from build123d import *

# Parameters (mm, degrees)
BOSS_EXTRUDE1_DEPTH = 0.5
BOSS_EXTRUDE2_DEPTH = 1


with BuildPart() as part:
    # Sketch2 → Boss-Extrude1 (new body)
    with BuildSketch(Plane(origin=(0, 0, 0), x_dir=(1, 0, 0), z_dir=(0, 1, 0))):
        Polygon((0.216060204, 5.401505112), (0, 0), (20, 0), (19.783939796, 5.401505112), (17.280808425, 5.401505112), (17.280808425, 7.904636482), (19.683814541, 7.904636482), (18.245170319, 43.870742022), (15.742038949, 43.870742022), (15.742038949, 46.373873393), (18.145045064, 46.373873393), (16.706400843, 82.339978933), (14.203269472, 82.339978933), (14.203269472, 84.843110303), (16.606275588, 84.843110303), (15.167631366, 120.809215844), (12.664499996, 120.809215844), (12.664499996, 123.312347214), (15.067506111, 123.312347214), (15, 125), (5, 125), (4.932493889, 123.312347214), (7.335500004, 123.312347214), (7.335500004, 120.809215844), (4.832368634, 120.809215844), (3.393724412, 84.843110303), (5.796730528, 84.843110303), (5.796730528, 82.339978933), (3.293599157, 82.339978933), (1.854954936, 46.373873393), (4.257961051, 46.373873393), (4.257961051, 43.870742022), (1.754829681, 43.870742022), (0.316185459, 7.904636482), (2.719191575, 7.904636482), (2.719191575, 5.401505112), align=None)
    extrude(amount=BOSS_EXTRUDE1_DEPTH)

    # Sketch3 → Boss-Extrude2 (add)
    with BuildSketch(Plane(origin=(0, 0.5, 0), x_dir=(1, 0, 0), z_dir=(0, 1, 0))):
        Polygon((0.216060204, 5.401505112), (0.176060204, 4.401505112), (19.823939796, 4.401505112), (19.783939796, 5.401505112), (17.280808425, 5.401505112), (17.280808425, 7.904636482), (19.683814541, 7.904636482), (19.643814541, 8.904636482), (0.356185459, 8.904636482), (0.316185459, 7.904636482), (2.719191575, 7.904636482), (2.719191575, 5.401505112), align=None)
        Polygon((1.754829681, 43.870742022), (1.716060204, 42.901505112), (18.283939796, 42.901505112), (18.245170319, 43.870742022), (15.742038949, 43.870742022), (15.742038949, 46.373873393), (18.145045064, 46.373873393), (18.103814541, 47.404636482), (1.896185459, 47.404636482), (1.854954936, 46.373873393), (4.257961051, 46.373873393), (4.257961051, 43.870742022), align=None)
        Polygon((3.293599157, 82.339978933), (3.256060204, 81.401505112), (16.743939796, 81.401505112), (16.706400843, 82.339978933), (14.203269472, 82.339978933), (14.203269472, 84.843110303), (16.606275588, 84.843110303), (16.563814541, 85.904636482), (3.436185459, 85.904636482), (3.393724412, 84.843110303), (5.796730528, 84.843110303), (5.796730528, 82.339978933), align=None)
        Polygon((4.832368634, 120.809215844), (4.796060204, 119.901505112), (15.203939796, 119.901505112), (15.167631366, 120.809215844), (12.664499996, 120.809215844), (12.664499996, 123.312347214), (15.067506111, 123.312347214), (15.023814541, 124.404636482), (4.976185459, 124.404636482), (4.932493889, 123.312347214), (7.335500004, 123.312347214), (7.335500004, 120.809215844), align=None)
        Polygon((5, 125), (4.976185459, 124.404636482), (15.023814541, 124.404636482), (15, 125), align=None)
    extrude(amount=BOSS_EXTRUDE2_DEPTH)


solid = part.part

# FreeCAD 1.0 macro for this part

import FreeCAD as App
import Part
import Sketcher

V = App.Vector
Q = App.Units.Quantity

doc = App.newDocument("Part")
params = doc.addObject("Spreadsheet::Sheet", "Params")
for row, (alias, value) in enumerate([
    ("sketch1_width", "20 mm"),
    ("sketch1_width2", "10 mm"),
    ("pad1_length", "0.5 mm"),
    ("sketch2_width", "10 mm"),
    ("pad2_length", "1 mm"),
], start=1):
    params.set(f"A{row}", alias)
    params.set(f"B{row}", "=" + value)
    params.setAlias(f"B{row}", alias)

body = doc.addObject("PartDesign::Body", "Body")

# Sketch on XZ plane
sketch1 = body.newObject("Sketcher::SketchObject", "Sketch")
sketch1.AttachmentSupport = (doc.getObject("XZ_Plane"), [""])
sketch1.MapMode = "FlatFace"
sketch1.addGeometry([
    Part.LineSegment(V(0.21606, -5.401505, 0), V(0, 0, 0)),  # 0
    Part.LineSegment(V(0, 0, 0), V(20, 0, 0)),  # 1
    Part.LineSegment(V(20, 0, 0), V(19.78394, -5.401505, 0)),  # 2
    Part.LineSegment(V(19.78394, -5.401505, 0), V(17.280808, -5.401505, 0)),  # 3
    Part.LineSegment(V(17.280808, -5.401505, 0), V(17.280808, -7.904636, 0)),  # 4
    Part.LineSegment(V(17.280808, -7.904636, 0), V(19.683815, -7.904636, 0)),  # 5
    Part.LineSegment(V(19.683815, -7.904636, 0), V(18.24517, -43.870742, 0)),  # 6
    Part.LineSegment(V(18.24517, -43.870742, 0), V(15.742039, -43.870742, 0)),  # 7
    Part.LineSegment(V(15.742039, -43.870742, 0), V(15.742039, -46.373873, 0)),  # 8
    Part.LineSegment(V(15.742039, -46.373873, 0), V(18.145045, -46.373873, 0)),  # 9
    Part.LineSegment(V(18.145045, -46.373873, 0), V(16.706401, -82.339979, 0)),  # 10
    Part.LineSegment(V(16.706401, -82.339979, 0), V(14.203269, -82.339979, 0)),  # 11
    Part.LineSegment(V(14.203269, -82.339979, 0), V(14.203269, -84.84311, 0)),  # 12
    Part.LineSegment(V(14.203269, -84.84311, 0), V(16.606276, -84.84311, 0)),  # 13
    Part.LineSegment(V(16.606276, -84.84311, 0), V(15.167631, -120.809216, 0)),  # 14
    Part.LineSegment(V(15.167631, -120.809216, 0), V(12.6645, -120.809216, 0)),  # 15
    Part.LineSegment(V(12.6645, -120.809216, 0), V(12.6645, -123.312347, 0)),  # 16
    Part.LineSegment(V(12.6645, -123.312347, 0), V(15.067506, -123.312347, 0)),  # 17
    Part.LineSegment(V(15.067506, -123.312347, 0), V(15, -125, 0)),  # 18
    Part.LineSegment(V(15, -125, 0), V(5, -125, 0)),  # 19
    Part.LineSegment(V(5, -125, 0), V(4.932494, -123.312347, 0)),  # 20
    Part.LineSegment(V(4.932494, -123.312347, 0), V(7.3355, -123.312347, 0)),  # 21
    Part.LineSegment(V(7.3355, -123.312347, 0), V(7.3355, -120.809216, 0)),  # 22
    Part.LineSegment(V(7.3355, -120.809216, 0), V(4.832369, -120.809216, 0)),  # 23
    Part.LineSegment(V(4.832369, -120.809216, 0), V(3.393724, -84.84311, 0)),  # 24
    Part.LineSegment(V(3.393724, -84.84311, 0), V(5.796731, -84.84311, 0)),  # 25
    Part.LineSegment(V(5.796731, -84.84311, 0), V(5.796731, -82.339979, 0)),  # 26
    Part.LineSegment(V(5.796731, -82.339979, 0), V(3.293599, -82.339979, 0)),  # 27
    Part.LineSegment(V(3.293599, -82.339979, 0), V(1.854955, -46.373873, 0)),  # 28
    Part.LineSegment(V(1.854955, -46.373873, 0), V(4.257961, -46.373873, 0)),  # 29
    Part.LineSegment(V(4.257961, -46.373873, 0), V(4.257961, -43.870742, 0)),  # 30
    Part.LineSegment(V(4.257961, -43.870742, 0), V(1.75483, -43.870742, 0)),  # 31
    Part.LineSegment(V(1.75483, -43.870742, 0), V(0.316185, -7.904636, 0)),  # 32
    Part.LineSegment(V(0.316185, -7.904636, 0), V(2.719192, -7.904636, 0)),  # 33
    Part.LineSegment(V(2.719192, -7.904636, 0), V(2.719192, -5.401505, 0)),  # 34
    Part.LineSegment(V(2.719192, -5.401505, 0), V(0.21606, -5.401505, 0)),  # 35
], False)
sketch1.addConstraint([
    Sketcher.Constraint("Coincident", 0, 2, 1, 1),
    Sketcher.Constraint("Coincident", 1, 2, 2, 1),
    Sketcher.Constraint("Coincident", 2, 2, 3, 1),
    Sketcher.Constraint("Coincident", 3, 2, 4, 1),
    Sketcher.Constraint("Coincident", 4, 2, 5, 1),
    Sketcher.Constraint("Coincident", 5, 2, 6, 1),
    Sketcher.Constraint("Coincident", 6, 2, 7, 1),
    Sketcher.Constraint("Coincident", 7, 2, 8, 1),
    Sketcher.Constraint("Coincident", 8, 2, 9, 1),
    Sketcher.Constraint("Coincident", 9, 2, 10, 1),
    Sketcher.Constraint("Coincident", 10, 2, 11, 1),
    Sketcher.Constraint("Coincident", 11, 2, 12, 1),
    Sketcher.Constraint("Coincident", 12, 2, 13, 1),
    Sketcher.Constraint("Coincident", 13, 2, 14, 1),
    Sketcher.Constraint("Coincident", 14, 2, 15, 1),
    Sketcher.Constraint("Coincident", 15, 2, 16, 1),
    Sketcher.Constraint("Coincident", 16, 2, 17, 1),
    Sketcher.Constraint("Coincident", 17, 2, 18, 1),
    Sketcher.Constraint("Coincident", 18, 2, 19, 1),
    Sketcher.Constraint("Coincident", 19, 2, 20, 1),
    Sketcher.Constraint("Coincident", 20, 2, 21, 1),
    Sketcher.Constraint("Coincident", 21, 2, 22, 1),
    Sketcher.Constraint("Coincident", 22, 2, 23, 1),
    Sketcher.Constraint("Coincident", 23, 2, 24, 1),
    Sketcher.Constraint("Coincident", 24, 2, 25, 1),
    Sketcher.Constraint("Coincident", 25, 2, 26, 1),
    Sketcher.Constraint("Coincident", 26, 2, 27, 1),
    Sketcher.Constraint("Coincident", 27, 2, 28, 1),
    Sketcher.Constraint("Coincident", 28, 2, 29, 1),
    Sketcher.Constraint("Coincident", 29, 2, 30, 1),
    Sketcher.Constraint("Coincident", 30, 2, 31, 1),
    Sketcher.Constraint("Coincident", 31, 2, 32, 1),
    Sketcher.Constraint("Coincident", 32, 2, 33, 1),
    Sketcher.Constraint("Coincident", 33, 2, 34, 1),
    Sketcher.Constraint("Coincident", 34, 2, 35, 1),
    Sketcher.Constraint("Coincident", 35, 2, 0, 1),
    Sketcher.Constraint("Horizontal", 1),
    Sketcher.Constraint("Horizontal", 3),
    Sketcher.Constraint("Vertical", 4),
    Sketcher.Constraint("Horizontal", 5),
    Sketcher.Constraint("Horizontal", 7),
    Sketcher.Constraint("Vertical", 8),
    Sketcher.Constraint("Horizontal", 9),
    Sketcher.Constraint("Horizontal", 11),
    Sketcher.Constraint("Vertical", 12),
    Sketcher.Constraint("Horizontal", 13),
    Sketcher.Constraint("Horizontal", 15),
    Sketcher.Constraint("Vertical", 16),
    Sketcher.Constraint("Horizontal", 17),
    Sketcher.Constraint("Horizontal", 19),
    Sketcher.Constraint("Horizontal", 21),
    Sketcher.Constraint("Vertical", 22),
    Sketcher.Constraint("Horizontal", 23),
    Sketcher.Constraint("Horizontal", 25),
    Sketcher.Constraint("Vertical", 26),
    Sketcher.Constraint("Horizontal", 27),
    Sketcher.Constraint("Horizontal", 29),
    Sketcher.Constraint("Vertical", 30),
    Sketcher.Constraint("Horizontal", 31),
    Sketcher.Constraint("Horizontal", 33),
    Sketcher.Constraint("Vertical", 34),
    Sketcher.Constraint("Horizontal", 35),
    Sketcher.Constraint("Coincident", 0, 2, -1, 1),
    Sketcher.Constraint("DistanceX", 1, 1, 1, 2, Q("20 mm")),
    Sketcher.Constraint("DistanceX", 19, 2, 19, 1, Q("10 mm")),
    Sketcher.Constraint("DistanceX", -1, 1, 18, 2, Q("15 mm")),
    Sketcher.Constraint("DistanceY", 18, 2, -1, 1, Q("125 mm")),
    Sketcher.Constraint("DistanceX", 21, 2, 16, 2, Q("5.329 mm")),
    Sketcher.Constraint("DistanceX", 3, 2, 3, 1, Q("2.503131 mm")),
    Sketcher.Constraint("DistanceX", 7, 2, 7, 1, Q("2.503131 mm")),
    Sketcher.Constraint("DistanceX", 11, 2, 11, 1, Q("2.503131 mm")),
    Sketcher.Constraint("DistanceX", 15, 2, 15, 1, Q("2.503131 mm")),
    Sketcher.Constraint("DistanceX", 23, 2, 23, 1, Q("2.503131 mm")),
    Sketcher.Constraint("DistanceX", 27, 2, 27, 1, Q("2.503131 mm")),
    Sketcher.Constraint("DistanceX", 31, 2, 31, 1, Q("2.503131 mm")),
    Sketcher.Constraint("DistanceX", 35, 2, 35, 1, Q("2.503131 mm")),
    Sketcher.Constraint("DistanceY", 4, 2, 4, 1, Q("2.503131 mm")),
    Sketcher.Constraint("DistanceY", 8, 2, 8, 1, Q("2.503131 mm")),
    Sketcher.Constraint("DistanceY", 12, 2, 12, 1, Q("2.503131 mm")),
    Sketcher.Constraint("DistanceY", 16, 2, 16, 1, Q("2.503131 mm")),
    Sketcher.Constraint("DistanceY", 22, 1, 22, 2, Q("2.503131 mm")),
    Sketcher.Constraint("DistanceY", 26, 1, 26, 2, Q("2.503131 mm")),
    Sketcher.Constraint("DistanceY", 30, 1, 30, 2, Q("2.503131 mm")),
    Sketcher.Constraint("DistanceY", 34, 1, 34, 2, Q("2.503131 mm")),
    Sketcher.Constraint("DistanceX", -1, 1, 10, 2, Q("16.706401 mm")),
    Sketcher.Constraint("DistanceX", -1, 1, 15, 2, Q("12.6645 mm")),
    Sketcher.Constraint("DistanceX", -1, 1, 27, 2, Q("3.293599 mm")),
    Sketcher.Constraint("DistanceX", 7, 2, 2, 2, Q("4.041901 mm")),
    Sketcher.Constraint("DistanceX", 11, 2, 6, 2, Q("4.041901 mm")),
    Sketcher.Constraint("DistanceX", 5, 1, 5, 2, Q("2.403006 mm")),
    Sketcher.Constraint("DistanceX", 9, 1, 9, 2, Q("2.403006 mm")),
    Sketcher.Constraint("DistanceX", 13, 1, 13, 2, Q("2.403006 mm")),
    Sketcher.Constraint("DistanceX", 17, 1, 17, 2, Q("2.403006 mm")),
    Sketcher.Constraint("DistanceX", 21, 1, 21, 2, Q("2.403006 mm")),
    Sketcher.Constraint("DistanceX", 25, 1, 25, 2, Q("2.403006 mm")),
    Sketcher.Constraint("DistanceX", 29, 1, 29, 2, Q("2.403006 mm")),
    Sketcher.Constraint("DistanceX", 33, 1, 33, 2, Q("2.403006 mm")),
    Sketcher.Constraint("DistanceY", 10, 2, -1, 1, Q("82.339979 mm")),
    Sketcher.Constraint("DistanceY", 24, 2, -1, 1, Q("84.84311 mm")),
    Sketcher.Constraint("DistanceX", -1, 1, 29, 2, Q("4.257961 mm")),
    Sketcher.Constraint("DistanceX", -1, 1, 33, 2, Q("2.719192 mm")),
    Sketcher.Constraint("DistanceY", 8, 2, 3, 2, Q("40.972368 mm")),
    Sketcher.Constraint("DistanceY", 12, 2, 7, 2, Q("40.972368 mm")),
    Sketcher.Constraint("DistanceY", 16, 2, 11, 2, Q("40.972368 mm")),
    Sketcher.Constraint("DistanceY", 20, 2, 15, 2, Q("2.503131 mm")),
    Sketcher.Constraint("DistanceY", 28, 2, 7, 2, Q("2.503131 mm")),
    Sketcher.Constraint("DistanceY", 32, 2, 3, 2, Q("2.503131 mm")),
])
sketch1.setExpression("Constraints[63]", "Params.sketch1_width")
sketch1.setExpression("Constraints[64]", "Params.sketch1_width2")
pad1 = body.newObject("PartDesign::Pad", "Pad")
pad1.Profile = sketch1
pad1.setExpression("Length", "Params.pad1_length")
pad1.Reversed = True

# Sketch on XZ plane
sketch2 = body.newObject("Sketcher::SketchObject", "Sketch001")
sketch2.AttachmentSupport = (doc.getObject("XZ_Plane"), [""])
sketch2.MapMode = "FlatFace"
sketch2.AttachmentOffset = App.Placement(V(0, 0, -0.5), App.Rotation())
sketch2.addGeometry([
    Part.LineSegment(V(0.21606, -5.401505, 0), V(0.17606, -4.401505, 0)),  # 0
    Part.LineSegment(V(0.17606, -4.401505, 0), V(19.82394, -4.401505, 0)),  # 1
    Part.LineSegment(V(19.82394, -4.401505, 0), V(19.78394, -5.401505, 0)),  # 2
    Part.LineSegment(V(19.78394, -5.401505, 0), V(17.280808, -5.401505, 0)),  # 3
    Part.LineSegment(V(17.280808, -5.401505, 0), V(17.280808, -7.904636, 0)),  # 4
    Part.LineSegment(V(17.280808, -7.904636, 0), V(19.683815, -7.904636, 0)),  # 5
    Part.LineSegment(V(19.683815, -7.904636, 0), V(19.643815, -8.904636, 0)),  # 6
    Part.LineSegment(V(19.643815, -8.904636, 0), V(0.356185, -8.904636, 0)),  # 7
    Part.LineSegment(V(0.356185, -8.904636, 0), V(0.316185, -7.904636, 0)),  # 8
    Part.LineSegment(V(0.316185, -7.904636, 0), V(2.719192, -7.904636, 0)),  # 9
    Part.LineSegment(V(2.719192, -7.904636, 0), V(2.719192, -5.401505, 0)),  # 10
    Part.LineSegment(V(2.719192, -5.401505, 0), V(0.21606, -5.401505, 0)),  # 11
    Part.LineSegment(V(1.75483, -43.870742, 0), V(1.71606, -42.901505, 0)),  # 12
    Part.LineSegment(V(1.71606, -42.901505, 0), V(18.28394, -42.901505, 0)),  # 13
    Part.LineSegment(V(18.28394, -42.901505, 0), V(18.24517, -43.870742, 0)),  # 14
    Part.LineSegment(V(18.24517, -43.870742, 0), V(15.742039, -43.870742, 0)),  # 15
    Part.LineSegment(V(15.742039, -43.870742, 0), V(15.742039, -46.373873, 0)),  # 16
    Part.LineSegment(V(15.742039, -46.373873, 0), V(18.145045, -46.373873, 0)),  # 17
    Part.LineSegment(V(18.145045, -46.373873, 0), V(18.103815, -47.404636, 0)),  # 18
    Part.LineSegment(V(18.103815, -47.404636, 0), V(1.896185, -47.404636, 0)),  # 19
    Part.LineSegment(V(1.896185, -47.404636, 0), V(1.854955, -46.373873, 0)),  # 20
    Part.LineSegment(V(1.854955, -46.373873, 0), V(4.257961, -46.373873, 0)),  # 21
    Part.LineSegment(V(4.257961, -46.373873, 0), V(4.257961, -43.870742, 0)),  # 22
    Part.LineSegment(V(4.257961, -43.870742, 0), V(1.75483, -43.870742, 0)),  # 23
    Part.LineSegment(V(3.293599, -82.339979, 0), V(3.25606, -81.401505, 0)),  # 24
    Part.LineSegment(V(3.25606, -81.401505, 0), V(16.74394, -81.401505, 0)),  # 25
    Part.LineSegment(V(16.74394, -81.401505, 0), V(16.706401, -82.339979, 0)),  # 26
    Part.LineSegment(V(16.706401, -82.339979, 0), V(14.203269, -82.339979, 0)),  # 27
    Part.LineSegment(V(14.203269, -82.339979, 0), V(14.203269, -84.84311, 0)),  # 28
    Part.LineSegment(V(14.203269, -84.84311, 0), V(16.606276, -84.84311, 0)),  # 29
    Part.LineSegment(V(16.606276, -84.84311, 0), V(16.563815, -85.904636, 0)),  # 30
    Part.LineSegment(V(16.563815, -85.904636, 0), V(3.436185, -85.904636, 0)),  # 31
    Part.LineSegment(V(3.436185, -85.904636, 0), V(3.393724, -84.84311, 0)),  # 32
    Part.LineSegment(V(3.393724, -84.84311, 0), V(5.796731, -84.84311, 0)),  # 33
    Part.LineSegment(V(5.796731, -84.84311, 0), V(5.796731, -82.339979, 0)),  # 34
    Part.LineSegment(V(5.796731, -82.339979, 0), V(3.293599, -82.339979, 0)),  # 35
    Part.LineSegment(V(4.832369, -120.809216, 0), V(4.79606, -119.901505, 0)),  # 36
    Part.LineSegment(V(4.79606, -119.901505, 0), V(15.20394, -119.901505, 0)),  # 37
    Part.LineSegment(V(15.20394, -119.901505, 0), V(15.167631, -120.809216, 0)),  # 38
    Part.LineSegment(V(15.167631, -120.809216, 0), V(12.6645, -120.809216, 0)),  # 39
    Part.LineSegment(V(12.6645, -120.809216, 0), V(12.6645, -123.312347, 0)),  # 40
    Part.LineSegment(V(12.6645, -123.312347, 0), V(15.067506, -123.312347, 0)),  # 41
    Part.LineSegment(V(15.067506, -123.312347, 0), V(15.023815, -124.404636, 0)),  # 42
    Part.LineSegment(V(15.023815, -124.404636, 0), V(15, -125, 0)),  # 43
    Part.LineSegment(V(15, -125, 0), V(5, -125, 0)),  # 44
    Part.LineSegment(V(5, -125, 0), V(4.976185, -124.404636, 0)),  # 45
    Part.LineSegment(V(4.976185, -124.404636, 0), V(4.932494, -123.312347, 0)),  # 46
    Part.LineSegment(V(4.932494, -123.312347, 0), V(7.3355, -123.312347, 0)),  # 47
    Part.LineSegment(V(7.3355, -123.312347, 0), V(7.3355, -120.809216, 0)),  # 48
    Part.LineSegment(V(7.3355, -120.809216, 0), V(4.832369, -120.809216, 0)),  # 49
], False)
sketch2.addConstraint([
    Sketcher.Constraint("Coincident", 0, 2, 1, 1),
    Sketcher.Constraint("Coincident", 1, 2, 2, 1),
    Sketcher.Constraint("Coincident", 2, 2, 3, 1),
    Sketcher.Constraint("Coincident", 3, 2, 4, 1),
    Sketcher.Constraint("Coincident", 4, 2, 5, 1),
    Sketcher.Constraint("Coincident", 5, 2, 6, 1),
    Sketcher.Constraint("Coincident", 6, 2, 7, 1),
    Sketcher.Constraint("Coincident", 7, 2, 8, 1),
    Sketcher.Constraint("Coincident", 8, 2, 9, 1),
    Sketcher.Constraint("Coincident", 9, 2, 10, 1),
    Sketcher.Constraint("Coincident", 10, 2, 11, 1),
    Sketcher.Constraint("Coincident", 11, 2, 0, 1),
    Sketcher.Constraint("Coincident", 12, 2, 13, 1),
    Sketcher.Constraint("Coincident", 13, 2, 14, 1),
    Sketcher.Constraint("Coincident", 14, 2, 15, 1),
    Sketcher.Constraint("Coincident", 15, 2, 16, 1),
    Sketcher.Constraint("Coincident", 16, 2, 17, 1),
    Sketcher.Constraint("Coincident", 17, 2, 18, 1),
    Sketcher.Constraint("Coincident", 18, 2, 19, 1),
    Sketcher.Constraint("Coincident", 19, 2, 20, 1),
    Sketcher.Constraint("Coincident", 20, 2, 21, 1),
    Sketcher.Constraint("Coincident", 21, 2, 22, 1),
    Sketcher.Constraint("Coincident", 22, 2, 23, 1),
    Sketcher.Constraint("Coincident", 23, 2, 12, 1),
    Sketcher.Constraint("Coincident", 24, 2, 25, 1),
    Sketcher.Constraint("Coincident", 25, 2, 26, 1),
    Sketcher.Constraint("Coincident", 26, 2, 27, 1),
    Sketcher.Constraint("Coincident", 27, 2, 28, 1),
    Sketcher.Constraint("Coincident", 28, 2, 29, 1),
    Sketcher.Constraint("Coincident", 29, 2, 30, 1),
    Sketcher.Constraint("Coincident", 30, 2, 31, 1),
    Sketcher.Constraint("Coincident", 31, 2, 32, 1),
    Sketcher.Constraint("Coincident", 32, 2, 33, 1),
    Sketcher.Constraint("Coincident", 33, 2, 34, 1),
    Sketcher.Constraint("Coincident", 34, 2, 35, 1),
    Sketcher.Constraint("Coincident", 35, 2, 24, 1),
    Sketcher.Constraint("Coincident", 36, 2, 37, 1),
    Sketcher.Constraint("Coincident", 37, 2, 38, 1),
    Sketcher.Constraint("Coincident", 38, 2, 39, 1),
    Sketcher.Constraint("Coincident", 39, 2, 40, 1),
    Sketcher.Constraint("Coincident", 40, 2, 41, 1),
    Sketcher.Constraint("Coincident", 41, 2, 42, 1),
    Sketcher.Constraint("Coincident", 42, 2, 43, 1),
    Sketcher.Constraint("Coincident", 43, 2, 44, 1),
    Sketcher.Constraint("Coincident", 44, 2, 45, 1),
    Sketcher.Constraint("Coincident", 45, 2, 46, 1),
    Sketcher.Constraint("Coincident", 46, 2, 47, 1),
    Sketcher.Constraint("Coincident", 47, 2, 48, 1),
    Sketcher.Constraint("Coincident", 48, 2, 49, 1),
    Sketcher.Constraint("Coincident", 49, 2, 36, 1),
    Sketcher.Constraint("Horizontal", 1),
    Sketcher.Constraint("Horizontal", 3),
    Sketcher.Constraint("Vertical", 4),
    Sketcher.Constraint("Horizontal", 5),
    Sketcher.Constraint("Horizontal", 7),
    Sketcher.Constraint("Horizontal", 9),
    Sketcher.Constraint("Vertical", 10),
    Sketcher.Constraint("Horizontal", 11),
    Sketcher.Constraint("Horizontal", 13),
    Sketcher.Constraint("Horizontal", 15),
    Sketcher.Constraint("Vertical", 16),
    Sketcher.Constraint("Horizontal", 17),
    Sketcher.Constraint("Horizontal", 19),
    Sketcher.Constraint("Horizontal", 21),
    Sketcher.Constraint("Vertical", 22),
    Sketcher.Constraint("Horizontal", 23),
    Sketcher.Constraint("Horizontal", 25),
    Sketcher.Constraint("Horizontal", 27),
    Sketcher.Constraint("Vertical", 28),
    Sketcher.Constraint("Horizontal", 29),
    Sketcher.Constraint("Horizontal", 31),
    Sketcher.Constraint("Horizontal", 33),
    Sketcher.Constraint("Vertical", 34),
    Sketcher.Constraint("Horizontal", 35),
    Sketcher.Constraint("Horizontal", 37),
    Sketcher.Constraint("Horizontal", 39),
    Sketcher.Constraint("Vertical", 40),
    Sketcher.Constraint("Horizontal", 41),
    Sketcher.Constraint("Horizontal", 44),
    Sketcher.Constraint("Horizontal", 47),
    Sketcher.Constraint("Vertical", 48),
    Sketcher.Constraint("Horizontal", 49),
    Sketcher.Constraint("Parallel", 2, 6),
    Sketcher.Constraint("Parallel", 0, 8),
    Sketcher.Constraint("Parallel", 8, 12),
    Sketcher.Constraint("Parallel", 6, 14),
    Sketcher.Constraint("Parallel", 14, 18),
    Sketcher.Constraint("Parallel", 12, 20),
    Sketcher.Constraint("Parallel", 20, 24),
    Sketcher.Constraint("Parallel", 18, 26),
    Sketcher.Constraint("Parallel", 26, 30),
    Sketcher.Constraint("Parallel", 24, 32),
    Sketcher.Constraint("Parallel", 32, 36),
    Sketcher.Constraint("Parallel", 30, 38),
    Sketcher.Constraint("Parallel", 38, 42),
    Sketcher.Constraint("Parallel", 42, 43),
    Sketcher.Constraint("Parallel", 36, 45),
    Sketcher.Constraint("Parallel", 45, 46),
    Sketcher.Constraint("Horizontal", 5, 2, 8, 2),
    Sketcher.Constraint("Horizontal", 3, 2, 10, 2),
    Sketcher.Constraint("Horizontal", 17, 2, 20, 2),
    Sketcher.Constraint("Horizontal", 15, 2, 22, 2),
    Sketcher.Constraint("Horizontal", 29, 2, 32, 2),
    Sketcher.Constraint("Horizontal", 27, 2, 34, 2),
    Sketcher.Constraint("Horizontal", 42, 2, 45, 2),
    Sketcher.Constraint("Horizontal", 41, 2, 46, 2),
    Sketcher.Constraint("Horizontal", 39, 2, 48, 2),
    Sketcher.Constraint("Equal", 5, 9),
    Sketcher.Constraint("Equal", 3, 11),
    Sketcher.Constraint("Equal", 11, 15),
    Sketcher.Constraint("Equal", 9, 17),
    Sketcher.Constraint("Equal", 17, 21),
    Sketcher.Constraint("Equal", 15, 23),
    Sketcher.Constraint("Equal", 23, 27),
    Sketcher.Constraint("Equal", 21, 29),
    Sketcher.Constraint("Equal", 29, 33),
    Sketcher.Constraint("Equal", 27, 35),
    Sketcher.Constraint("Equal", 35, 39),
    Sketcher.Constraint("Equal", 33, 41),
    Sketcher.Constraint("Equal", 41, 47),
    Sketcher.Constraint("Equal", 39, 49),
    Sketcher.Constraint("Equal", 49, 4),
    Sketcher.Constraint("Equal", 10, 16),
    Sketcher.Constraint("Equal", 22, 28),
    Sketcher.Constraint("Equal", 34, 40),
    Sketcher.Constraint("Equal", 0, 2),
    Sketcher.Constraint("Equal", 2, 6),
    Sketcher.Constraint("DistanceX", 44, 2, 44, 1, Q("10 mm")),
    Sketcher.Constraint("DistanceX", -1, 1, 43, 2, Q("15 mm")),
    Sketcher.Constraint("DistanceY", 43, 2, -1, 1, Q("125 mm")),
    Sketcher.Constraint("DistanceY", 2, 2, 1, 2, Q("1 mm")),
    Sketcher.Constraint("DistanceY", 12, 2, 10, 2, Q("37.5 mm")),
    Sketcher.Constraint("DistanceX", 11, 2, 12, 2, Q("1.5 mm")),
    Sketcher.Constraint("DistanceX", 2, 2, 1, 2, Q("0.04 mm")),
    Sketcher.Constraint("DistanceX", 47, 2, 40, 2, Q("5.329 mm")),
    Sketcher.Constraint("DistanceX", 1, 1, 1, 2, Q("19.64788 mm")),
    Sketcher.Constraint("DistanceX", 3, 2, 3, 1, Q("2.503131 mm")),
    Sketcher.Constraint("DistanceX", 7, 2, 7, 1, Q("19.287629 mm")),
    Sketcher.Constraint("DistanceX", 13, 1, 13, 2, Q("16.56788 mm")),
    Sketcher.Constraint("DistanceX", 19, 2, 19, 1, Q("16.207629 mm")),
    Sketcher.Constraint("DistanceX", 25, 1, 25, 2, Q("13.48788 mm")),
    Sketcher.Constraint("DistanceX", 31, 2, 31, 1, Q("13.127629 mm")),
    Sketcher.Constraint("DistanceX", 37, 1, 37, 2, Q("10.40788 mm")),
    Sketcher.Constraint("DistanceX", -1, 1, 26, 2, Q("16.706401 mm")),
    Sketcher.Constraint("DistanceX", -1, 1, 35, 2, Q("3.293599 mm")),
    Sketcher.Constraint("DistanceX", 15, 2, 13, 2, Q("2.541901 mm")),
    Sketcher.Constraint("DistanceX", 24, 2, 21, 2, Q("1.001901 mm")),
    Sketcher.Constraint("Distance", 43, Q("0.59584 mm")),
    Sketcher.Constraint("DistanceY", 26, 2, -1, 1, Q("82.339979 mm")),
    Sketcher.Constraint("DistanceY", 24, 2, 19, 2, Q("33.996869 mm")),
])
sketch2.setExpression("Constraints[127]", "Params.sketch2_width")
pad2 = body.newObject("PartDesign::Pad", "Pad001")
pad2.Profile = sketch2
pad2.setExpression("Length", "Params.pad2_length")
pad2.Reversed = True

doc.recompute()
